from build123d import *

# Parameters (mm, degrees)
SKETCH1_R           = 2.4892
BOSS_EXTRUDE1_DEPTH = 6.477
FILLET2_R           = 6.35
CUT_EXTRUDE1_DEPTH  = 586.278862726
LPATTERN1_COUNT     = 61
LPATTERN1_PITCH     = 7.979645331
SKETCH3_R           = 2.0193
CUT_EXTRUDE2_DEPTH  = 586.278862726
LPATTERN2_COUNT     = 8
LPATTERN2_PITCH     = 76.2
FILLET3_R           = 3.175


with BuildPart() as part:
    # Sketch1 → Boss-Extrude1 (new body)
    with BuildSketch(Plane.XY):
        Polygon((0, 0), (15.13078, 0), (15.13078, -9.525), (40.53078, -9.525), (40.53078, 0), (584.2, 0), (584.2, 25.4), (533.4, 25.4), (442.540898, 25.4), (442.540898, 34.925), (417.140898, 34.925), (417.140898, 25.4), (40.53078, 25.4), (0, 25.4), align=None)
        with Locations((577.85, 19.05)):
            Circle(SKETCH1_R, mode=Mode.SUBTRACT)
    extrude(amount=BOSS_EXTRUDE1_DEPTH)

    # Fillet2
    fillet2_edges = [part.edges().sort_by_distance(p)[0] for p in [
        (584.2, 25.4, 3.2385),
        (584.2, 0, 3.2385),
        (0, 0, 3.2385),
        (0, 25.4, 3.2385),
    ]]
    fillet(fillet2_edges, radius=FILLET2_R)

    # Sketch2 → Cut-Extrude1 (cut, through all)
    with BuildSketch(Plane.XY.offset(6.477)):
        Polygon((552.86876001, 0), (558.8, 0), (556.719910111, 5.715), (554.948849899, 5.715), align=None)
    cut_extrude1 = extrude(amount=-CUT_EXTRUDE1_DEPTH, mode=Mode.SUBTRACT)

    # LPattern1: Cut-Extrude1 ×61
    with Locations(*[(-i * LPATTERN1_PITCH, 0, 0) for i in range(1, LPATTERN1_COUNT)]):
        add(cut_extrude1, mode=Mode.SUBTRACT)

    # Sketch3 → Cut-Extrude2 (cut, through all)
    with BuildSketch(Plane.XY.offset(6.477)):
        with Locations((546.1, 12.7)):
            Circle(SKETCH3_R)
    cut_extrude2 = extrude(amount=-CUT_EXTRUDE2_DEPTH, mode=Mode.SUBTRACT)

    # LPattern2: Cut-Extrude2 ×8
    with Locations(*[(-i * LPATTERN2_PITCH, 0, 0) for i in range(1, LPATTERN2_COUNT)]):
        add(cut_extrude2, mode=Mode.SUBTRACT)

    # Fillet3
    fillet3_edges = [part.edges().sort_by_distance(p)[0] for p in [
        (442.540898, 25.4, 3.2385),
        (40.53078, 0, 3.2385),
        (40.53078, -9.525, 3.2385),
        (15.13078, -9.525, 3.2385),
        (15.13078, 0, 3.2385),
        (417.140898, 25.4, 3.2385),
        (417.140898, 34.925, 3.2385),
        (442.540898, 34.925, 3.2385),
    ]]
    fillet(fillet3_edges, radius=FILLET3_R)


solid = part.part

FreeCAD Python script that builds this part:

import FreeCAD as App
import Part
import Sketcher
Q = App.Units.Quantity


def edges_at(feature, points):
    """Names of the edges that pass closest to the given points."""
    edges = feature.Shape.Edges
    near = lambda p: min(range(len(edges)), key=lambda i: edges[i].distToShape(Part.Vertex(*p))[0])
    return sorted({f"Edge{near(p) + 1}" for p in points})


def add_polygon(sketch, points):
    """Adds a closed chain of lines whose ends are joined by coincident constraints."""
    first, n = sketch.GeometryCount, len(points)
    for a, b in zip(points, points[1:] + points[:1]):
        sketch.addGeometry(Part.LineSegment(App.Vector(*a, 0), App.Vector(*b, 0)), False)
    for i in range(n):
        sketch.addConstraint(Sketcher.Constraint("Coincident", first + i, 2, first + (i + 1) % n, 1))

doc = App.newDocument("Part")
body = doc.addObject("PartDesign::Body", "Body")

# Sketch on XY plane
sketch1 = body.newObject("Sketcher::SketchObject", "Sketch")
sketch1.AttachmentSupport = (doc.getObject("XY_Plane"), [""])
sketch1.MapMode = "FlatFace"
add_polygon(sketch1, [(0, 0), (15.1, 0), (15.1, -9.5), (40.5, -9.5), (40.5, 0), (584.2, 0), (584.2, 25.4), (442.5, 25.4), (442.5, 34.9), (417.1, 34.9), (417.1, 25.4), (0, 25.4)])  # lines 0-11
sketch1.addGeometry(Part.Circle(App.Vector(577.9, 19.1, 0), App.Vector(0, 0, 1), 2.5), False)  # 12
sketch1.addConstraint([
    Sketcher.Constraint("Horizontal", 0),
    Sketcher.Constraint("Vertical", 1),
    Sketcher.Constraint("Horizontal", 2),
    Sketcher.Constraint("Vertical", 3),
    Sketcher.Constraint("Horizontal", 4),
    Sketcher.Constraint("Vertical", 5),
    Sketcher.Constraint("Horizontal", 6),
    Sketcher.Constraint("Vertical", 7),
    Sketcher.Constraint("Horizontal", 8),
    Sketcher.Constraint("Vertical", 9),
    Sketcher.Constraint("Horizontal", 10),
    Sketcher.Constraint("Vertical", 11),
    Sketcher.Constraint("Coincident", 11, 2, -1, 1),
    Sketcher.Constraint("PointOnObject", 3, 2, -1),
    Sketcher.Constraint("Horizontal", 6, 2, 9, 2),
    Sketcher.Constraint("Equal", 2, 8),
    Sketcher.Constraint("Equal", 8, 5),
    Sketcher.Constraint("Equal", 3, 7),
    Sketcher.Constraint("DistanceX", 2, 1, 2, 2, Q("1 in")),
    Sketcher.Constraint("Diameter", 12, Q("0.196 in")),
    Sketcher.Constraint("DistanceX", -1, 1, 4, 2, Q("23 in")),
    Sketcher.Constraint("DistanceY", 1, 2, 1, 1, Q("0.375 in")),
    Sketcher.Constraint("DistanceX", -1, 1, 12, 3, Q("22.75 in")),
    Sketcher.Constraint("DistanceY", -1, 1, 12, 3, Q("0.75 in")),
    Sketcher.Constraint("DistanceX", 0, 1, 0, 2, Q("0.5957 in")),
    Sketcher.Constraint("DistanceX", 10, 2, 10, 1, 417.140898),
])
pad1 = body.newObject("PartDesign::Pad", "Pad")
pad1.Profile = sketch1
pad1.Length = Q("0.255 in")
doc.recompute()

fillet = body.newObject("PartDesign::Fillet", "Fillet")
fillet.Base = (pad1, edges_at(pad1, [
    (584.2, 25.4, 3.239),
    (584.2, 0, 3.239),
    (0, 0, 3.239),
    (0, 25.4, 3.239),
]))
fillet.Radius = Q("0.25 in")

# Sketch on XY plane
sketch2 = body.newObject("Sketcher::SketchObject", "Sketch001")
sketch2.AttachmentSupport = (doc.getObject("XY_Plane"), [""])
sketch2.MapMode = "FlatFace"
sketch2.AttachmentOffset = App.Placement(App.Vector(0, 0, 0.255 * 25.4), App.Rotation())
add_polygon(sketch2, [(552.9, 0), (558.8, 0), (556.7, 5.7), (554.9, 5.7)])  # lines 0-3
sketch2.addConstraint([
    Sketcher.Constraint("Horizontal", 0),
    Sketcher.Constraint("Horizontal", 2),
    Sketcher.Constraint("PointOnObject", 0, 2, -1),
    Sketcher.Constraint("Equal", 1, 3),
    Sketcher.Constraint("DistanceX", -1, 1, 0, 2, Q("22 in")),
    Sketcher.Constraint("Angle", 1, Q("110 deg")),
    Sketcher.Constraint("DistanceY", -1, 1, 1, 2, Q("0.225 in")),
    Sketcher.Constraint("DistanceX", 0, 1, 0, 2, 5.93124),
])
pocket1 = body.newObject("PartDesign::Pocket", "Pocket")
pocket1.Profile = sketch2
pocket1.Type = "ThroughAll"
doc.recompute()

linearpattern = body.newObject("PartDesign::LinearPattern", "LinearPattern")
linearpattern.Originals = [pocket1]
linearpattern.Direction = (doc.getObject("X_Axis"), [""])
linearpattern.Mode = "offset"
linearpattern.Offset = 7.979645
linearpattern.Occurrences = 61
linearpattern.Reversed = True
body.Tip = linearpattern

# Sketch on XY plane
sketch3 = body.newObject("Sketcher::SketchObject", "Sketch002")
sketch3.AttachmentSupport = (doc.getObject("XY_Plane"), [""])
sketch3.MapMode = "FlatFace"
sketch3.AttachmentOffset = App.Placement(App.Vector(0, 0, 0.255 * 25.4), App.Rotation())
sketch3.addGeometry(Part.Circle(App.Vector(546.1, 12.7, 0), App.Vector(0, 0, 1), 2), False)
sketch3.addConstraint([
    Sketcher.Constraint("Diameter", 0, Q("0.159 in")),
    Sketcher.Constraint("DistanceX", -1, 1, 0, 3, Q("21.5 in")),
    Sketcher.Constraint("DistanceY", -1, 1, 0, 3, Q("0.5 in")),
])
pocket2 = body.newObject("PartDesign::Pocket", "Pocket001")
pocket2.Profile = sketch3
pocket2.Type = "ThroughAll"
doc.recompute()

linearpattern2 = body.newObject("PartDesign::LinearPattern", "LinearPattern001")
linearpattern2.Originals = [pocket2]
linearpattern2.Direction = (doc.getObject("X_Axis"), [""])
linearpattern2.Mode = "offset"
linearpattern2.Offset = Q("3 in")
linearpattern2.Occurrences = 8
linearpattern2.Reversed = True
body.Tip = linearpattern2
doc.recompute()

fillet2 = body.newObject("PartDesign::Fillet", "Fillet001")
fillet2.Base = (linearpattern2, edges_at(linearpattern2, [
    (442.541, 25.4, 3.239),
    (40.531, 0, 3.239),
    (40.531, -9.525, 3.239),
    (15.131, -9.525, 3.239),
    (15.131, 0, 3.239),
    (417.141, 25.4, 3.239),
    (417.141, 34.925, 3.239),
    (442.541, 34.925, 3.239),
]))
fillet2.Radius = Q("0.125 in")

doc.recompute()
